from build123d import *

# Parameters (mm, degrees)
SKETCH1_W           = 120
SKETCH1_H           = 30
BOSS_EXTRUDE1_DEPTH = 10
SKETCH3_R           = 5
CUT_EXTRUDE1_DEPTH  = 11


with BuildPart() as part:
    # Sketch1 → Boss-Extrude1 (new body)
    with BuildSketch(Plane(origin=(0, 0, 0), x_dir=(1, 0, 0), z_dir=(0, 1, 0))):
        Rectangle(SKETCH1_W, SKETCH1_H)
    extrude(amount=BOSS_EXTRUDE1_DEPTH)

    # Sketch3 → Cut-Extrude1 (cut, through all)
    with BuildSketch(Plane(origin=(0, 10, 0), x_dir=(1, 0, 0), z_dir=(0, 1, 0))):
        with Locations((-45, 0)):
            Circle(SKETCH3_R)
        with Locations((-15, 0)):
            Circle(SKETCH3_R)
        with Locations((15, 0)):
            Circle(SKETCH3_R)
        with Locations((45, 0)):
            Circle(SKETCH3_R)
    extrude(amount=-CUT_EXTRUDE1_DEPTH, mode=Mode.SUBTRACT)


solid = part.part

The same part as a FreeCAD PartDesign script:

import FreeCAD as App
import Part
import Sketcher


def add_polygon(sketch, points):
    """Adds a closed chain of lines whose ends are joined by coincident constraints."""
    first, n = sketch.GeometryCount, len(points)
    for a, b in zip(points, points[1:] + points[:1]):
        sketch.addGeometry(Part.LineSegment(App.Vector(*a, 0), App.Vector(*b, 0)), False)
    for i in range(n):
        sketch.addConstraint(Sketcher.Constraint("Coincident", first + i, 2, first + (i + 1) % n, 1))

doc = App.newDocument("Part")
params = doc.addObject("Spreadsheet::Sheet", "Params")
for row, (alias, value) in enumerate([
    ("sketch1_width", "120 mm"),
    ("sketch1_height", "30 mm"),
    ("pad1_length", "10 mm"),
    ("sketch2_diameter", "10 mm"),
], start=1):
    params.set(f"A{row}", alias)
    params.set(f"B{row}", "=" + value)
    params.setAlias(f"B{row}", alias)

body = doc.addObject("PartDesign::Body", "Body")

# Sketch on XZ plane
sketch1 = doc.addObject("Sketcher::SketchObject", "Sketch")
body.addObject(sketch1)
sketch1.AttachmentSupport = (doc.XZ_Plane, [""])
sketch1.MapMode = "FlatFace"
add_polygon(sketch1, [(-60, -15), (-60, 15), (60, 15), (60, -15)])  # lines 0-3
sketch1.addConstraint([
    Sketcher.Constraint("Vertical", 0),
    Sketcher.Constraint("Horizontal", 1),
    Sketcher.Constraint("Vertical", 2),
    Sketcher.Constraint("Horizontal", 3),
    Sketcher.Constraint("Symmetric", 0, 2, 2, 2, -1, 1),
    Sketcher.Constraint("DistanceX", 1, 1, 1, 2, 120.0),
    Sketcher.Constraint("DistanceY", 0, 1, 0, 2, 30.0),
])
sketch1.setExpression("Constraints[9]", "Params.sketch1_width")
sketch1.setExpression("Constraints[10]", "Params.sketch1_height")
pad1 = doc.addObject("PartDesign::Pad", "Pad")
body.addObject(pad1)
pad1.Profile = sketch1
pad1.setExpression("Length", "Params.pad1_length")
pad1.Reversed = True

# Sketch on XZ plane
sketch2 = doc.addObject("Sketcher::SketchObject", "Sketch001")
body.addObject(sketch2)
sketch2.AttachmentSupport = (doc.XZ_Plane, [""])
sketch2.MapMode = "FlatFace"
sketch2.AttachmentOffset = App.Placement(App.Vector(0, 0, -10), App.Rotation())
sketch2.addGeometry([
    Part.Circle(App.Vector(-45, 0, 0), App.Vector(0, 0, 1), 5),
    Part.Circle(App.Vector(-15, 0, 0), App.Vector(0, 0, 1), 5),
    Part.Circle(App.Vector(15, 0, 0), App.Vector(0, 0, 1), 5),
    Part.Circle(App.Vector(45, 0, 0), App.Vector(0, 0, 1), 5),
], False)
sketch2.addConstraint([
    Sketcher.Constraint("Equal", 0, 1),
    Sketcher.Constraint("Equal", 1, 2),
    Sketcher.Constraint("Equal", 2, 3),
    Sketcher.Constraint("Symmetric", 1, 3, 2, 3, -1, 1),
    Sketcher.Constraint("Symmetric", 0, 3, 3, 3, -1, 1),
    Sketcher.Constraint("PointOnObject", 0, 3, -1),
    Sketcher.Constraint("PointOnObject", 1, 3, -1),
    Sketcher.Constraint("Diameter", 0, 10.0),
    Sketcher.Constraint("DistanceX", 0, 3, -1, 1, 45.0),
    Sketcher.Constraint("DistanceX", 1, 3, -1, 1, 15.0),
])
sketch2.setExpression("Constraints[7]", "Params.sketch2_diameter")
pocket1 = doc.addObject("PartDesign::Pocket", "Pocket")
body.addObject(pocket1)
pocket1.Profile = sketch2
pocket1.Type = "ThroughAll"
pocket1.Reversed = True

doc.recompute()
